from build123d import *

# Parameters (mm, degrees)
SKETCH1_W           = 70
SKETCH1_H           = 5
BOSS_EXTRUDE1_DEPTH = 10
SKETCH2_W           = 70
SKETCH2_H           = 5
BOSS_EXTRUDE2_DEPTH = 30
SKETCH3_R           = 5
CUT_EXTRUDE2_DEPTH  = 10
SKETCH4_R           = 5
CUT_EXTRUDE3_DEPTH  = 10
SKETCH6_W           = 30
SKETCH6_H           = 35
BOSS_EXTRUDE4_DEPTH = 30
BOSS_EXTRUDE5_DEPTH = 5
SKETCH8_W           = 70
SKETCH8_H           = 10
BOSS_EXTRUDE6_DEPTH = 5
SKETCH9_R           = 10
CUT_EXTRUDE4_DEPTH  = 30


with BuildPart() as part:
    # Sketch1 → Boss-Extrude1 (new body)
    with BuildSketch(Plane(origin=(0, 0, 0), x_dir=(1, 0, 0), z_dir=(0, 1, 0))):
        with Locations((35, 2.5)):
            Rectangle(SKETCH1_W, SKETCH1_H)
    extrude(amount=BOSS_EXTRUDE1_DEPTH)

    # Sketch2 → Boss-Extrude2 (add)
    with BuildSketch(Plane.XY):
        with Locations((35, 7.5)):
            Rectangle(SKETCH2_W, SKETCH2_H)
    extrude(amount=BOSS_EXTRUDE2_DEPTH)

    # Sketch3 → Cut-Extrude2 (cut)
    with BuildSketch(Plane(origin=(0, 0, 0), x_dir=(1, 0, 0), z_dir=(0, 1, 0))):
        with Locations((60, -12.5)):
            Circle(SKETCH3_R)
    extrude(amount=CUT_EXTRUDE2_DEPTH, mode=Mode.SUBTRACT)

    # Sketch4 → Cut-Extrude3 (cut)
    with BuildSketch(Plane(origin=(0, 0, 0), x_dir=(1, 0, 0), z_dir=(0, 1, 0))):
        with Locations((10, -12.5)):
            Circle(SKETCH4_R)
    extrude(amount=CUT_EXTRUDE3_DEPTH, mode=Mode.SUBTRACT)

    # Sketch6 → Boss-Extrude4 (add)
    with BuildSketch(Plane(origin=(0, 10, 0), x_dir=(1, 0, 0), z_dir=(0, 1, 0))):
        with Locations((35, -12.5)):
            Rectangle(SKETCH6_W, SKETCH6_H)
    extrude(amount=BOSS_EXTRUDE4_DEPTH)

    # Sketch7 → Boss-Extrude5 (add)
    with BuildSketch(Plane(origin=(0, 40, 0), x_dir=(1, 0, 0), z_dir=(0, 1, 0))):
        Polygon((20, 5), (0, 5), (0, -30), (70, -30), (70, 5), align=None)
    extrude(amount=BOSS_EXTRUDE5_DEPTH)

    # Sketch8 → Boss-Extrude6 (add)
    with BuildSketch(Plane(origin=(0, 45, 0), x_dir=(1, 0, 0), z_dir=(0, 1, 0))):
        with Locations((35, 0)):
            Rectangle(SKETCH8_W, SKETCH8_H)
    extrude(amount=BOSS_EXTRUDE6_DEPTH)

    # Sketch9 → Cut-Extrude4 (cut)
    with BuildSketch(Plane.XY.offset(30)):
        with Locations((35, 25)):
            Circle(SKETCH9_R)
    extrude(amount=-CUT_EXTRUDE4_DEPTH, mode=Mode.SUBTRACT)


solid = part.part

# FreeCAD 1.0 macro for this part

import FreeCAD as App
import Part
import Sketcher

V = App.Vector
Q = App.Units.Quantity


def add_polygon(sketch, points):
    """Adds a closed chain of lines whose ends are joined by coincident constraints."""
    first, n = sketch.GeometryCount, len(points)
    for a, b in zip(points, points[1:] + points[:1]):
        sketch.addGeometry(Part.LineSegment(App.Vector(*a, 0), App.Vector(*b, 0)), False)
    for i in range(n):
        sketch.addConstraint(Sketcher.Constraint("Coincident", first + i, 2, first + (i + 1) % n, 1))

doc = App.newDocument("Part")
body = doc.addObject("PartDesign::Body", "Body")

# Sketch on XZ plane
sketch1 = body.newObject("Sketcher::SketchObject", "Sketch")
sketch1.AttachmentSupport = (doc.getObject("XZ_Plane"), [""])
sketch1.MapMode = "FlatFace"
add_polygon(sketch1, [(0, -5), (0, 0), (70, 0), (70, -5)])  # lines 0-3
sketch1.addConstraint(Sketcher.Constraint("Vertical", 0))
sketch1.addConstraint(Sketcher.Constraint("Horizontal", 1))
sketch1.addConstraint(Sketcher.Constraint("Vertical", 2))
sketch1.addConstraint(Sketcher.Constraint("Horizontal", 3))
sketch1.addConstraint(Sketcher.Constraint("Coincident", 0, 2, -1, 1))
sketch1.addConstraint(Sketcher.Constraint("DistanceX", 1, 1, 1, 2, Q("70 mm")))
sketch1.addConstraint(Sketcher.Constraint("DistanceY", 0, 1, 0, 2, Q("5 mm")))
pad1 = body.newObject("PartDesign::Pad", "Pad")
pad1.Profile = sketch1
pad1.Length = 10
pad1.Reversed = True

# Sketch on XY plane
sketch2 = body.newObject("Sketcher::SketchObject", "Sketch001")
sketch2.AttachmentSupport = (doc.getObject("XY_Plane"), [""])
sketch2.MapMode = "FlatFace"
add_polygon(sketch2, [(0, 10), (0, 5), (70, 5), (70, 10)])  # lines 0-3
sketch2.addConstraint(Sketcher.Constraint("Vertical", 0))
sketch2.addConstraint(Sketcher.Constraint("Horizontal", 1))
sketch2.addConstraint(Sketcher.Constraint("Vertical", 2))
sketch2.addConstraint(Sketcher.Constraint("Horizontal", 3))
sketch2.addConstraint(Sketcher.Constraint("PointOnObject", 0, 2, -2))
sketch2.addConstraint(Sketcher.Constraint("DistanceX", 1, 1, 1, 2, Q("70 mm")))
sketch2.addConstraint(Sketcher.Constraint("DistanceY", 0, 2, 0, 1, Q("5 mm")))
sketch2.addConstraint(Sketcher.Constraint("DistanceY", -1, 1, 0, 2, Q("5 mm")))
pad2 = body.newObject("PartDesign::Pad", "Pad001")
pad2.Profile = sketch2
pad2.Length = 30

# Sketch on XZ plane
sketch3 = body.newObject("Sketcher::SketchObject", "Sketch002")
sketch3.AttachmentSupport = (doc.getObject("XZ_Plane"), [""])
sketch3.MapMode = "FlatFace"
sketch3.addGeometry(Part.Circle(V(60, 12, 0), V(0, 0, 1), 5), False)
sketch3.addConstraint(Sketcher.Constraint("Diameter", 0, Q("10 mm")))
sketch3.addConstraint(Sketcher.Constraint("DistanceX", -1, 1, 0, 3, Q("60 mm")))
sketch3.addConstraint(Sketcher.Constraint("DistanceY", -1, 1, 0, 3, Q("12.5 mm")))
pocket1 = body.newObject("PartDesign::Pocket", "Pocket")
pocket1.Profile = sketch3
pocket1.Length = 10

# Sketch on XZ plane
sketch4 = body.newObject("Sketcher::SketchObject", "Sketch003")
sketch4.AttachmentSupport = (doc.getObject("XZ_Plane"), [""])
sketch4.MapMode = "FlatFace"
sketch4.addGeometry(Part.Circle(V(10, 12, 0), V(0, 0, 1), 5), False)
sketch4.addConstraint(Sketcher.Constraint("Diameter", 0, Q("10 mm")))
sketch4.addConstraint(Sketcher.Constraint("DistanceX", -1, 1, 0, 3, Q("10 mm")))
sketch4.addConstraint(Sketcher.Constraint("DistanceY", -1, 1, 0, 3, Q("12.5 mm")))
pocket2 = body.newObject("PartDesign::Pocket", "Pocket001")
pocket2.Profile = sketch4
pocket2.Length = 10

# Sketch on XZ plane
sketch5 = body.newObject("Sketcher::SketchObject", "Sketch004")
sketch5.AttachmentSupport = (doc.getObject("XZ_Plane"), [""])
sketch5.MapMode = "FlatFace"
sketch5.AttachmentOffset = App.Placement(V(0, 0, -10), App.Rotation())
add_polygon(sketch5, [(20, -5), (20, 30), (50, 30), (50, -5)])  # lines 0-3
sketch5.addConstraint(Sketcher.Constraint("Vertical", 0))
sketch5.addConstraint(Sketcher.Constraint("Horizontal", 1))
sketch5.addConstraint(Sketcher.Constraint("Vertical", 2))
sketch5.addConstraint(Sketcher.Constraint("Horizontal", 3))
sketch5.addConstraint(Sketcher.Constraint("DistanceX", 1, 1, 1, 2, Q("30 mm")))
sketch5.addConstraint(Sketcher.Constraint("DistanceY", 0, 1, 0, 2, Q("35 mm")))
sketch5.addConstraint(Sketcher.Constraint("DistanceX", -1, 1, 0, 2, Q("20 mm")))
sketch5.addConstraint(Sketcher.Constraint("DistanceY", -1, 1, 0, 2, Q("30 mm")))
pad3 = body.newObject("PartDesign::Pad", "Pad002")
pad3.Profile = sketch5
pad3.Length = 30
pad3.Reversed = True

# Sketch on XZ plane
sketch6 = body.newObject("Sketcher::SketchObject", "Sketch005")
sketch6.AttachmentSupport = (doc.getObject("XZ_Plane"), [""])
sketch6.MapMode = "FlatFace"
sketch6.AttachmentOffset = App.Placement(V(0, 0, -40), App.Rotation())
add_polygon(sketch6, [(0, -5), (0, 30), (70, 30), (70, -5)])  # lines 0-3
sketch6.addConstraint(Sketcher.Constraint("Vertical", 0))
sketch6.addConstraint(Sketcher.Constraint("Horizontal", 1))
sketch6.addConstraint(Sketcher.Constraint("Vertical", 2))
sketch6.addConstraint(Sketcher.Constraint("Horizontal", 3))
sketch6.addConstraint(Sketcher.Constraint("PointOnObject", 0, 2, -2))
sketch6.addConstraint(Sketcher.Constraint("DistanceX", 1, 1, 1, 2, Q("70 mm")))
sketch6.addConstraint(Sketcher.Constraint("DistanceY", 0, 1, 0, 2, Q("35 mm")))
sketch6.addConstraint(Sketcher.Constraint("DistanceY", -1, 1, 0, 2, Q("30 mm")))
pad4 = body.newObject("PartDesign::Pad", "Pad003")
pad4.Profile = sketch6
pad4.Length = 5
pad4.Reversed = True

# Sketch on XZ plane
sketch7 = body.newObject("Sketcher::SketchObject", "Sketch006")
sketch7.AttachmentSupport = (doc.getObject("XZ_Plane"), [""])
sketch7.MapMode = "FlatFace"
sketch7.AttachmentOffset = App.Placement(V(0, 0, -45), App.Rotation())
add_polygon(sketch7, [(0, -5), (0, 5), (70, 5), (70, -5)])  # lines 0-3
sketch7.addConstraint(Sketcher.Constraint("Vertical", 0))
sketch7.addConstraint(Sketcher.Constraint("Horizontal", 1))
sketch7.addConstraint(Sketcher.Constraint("Vertical", 2))
sketch7.addConstraint(Sketcher.Constraint("Horizontal", 3))
sketch7.addConstraint(Sketcher.Constraint("Symmetric", 0, 2, 3, 2, -1, 1))
sketch7.addConstraint(Sketcher.Constraint("DistanceX", 1, 1, 1, 2, Q("70 mm")))
sketch7.addConstraint(Sketcher.Constraint("DistanceY", 0, 1, 0, 2, Q("10 mm")))
pad5 = body.newObject("PartDesign::Pad", "Pad004")
pad5.Profile = sketch7
pad5.Length = 5
pad5.Reversed = True

# Sketch on XY plane
sketch8 = body.newObject("Sketcher::SketchObject", "Sketch007")
sketch8.AttachmentSupport = (doc.getObject("XY_Plane"), [""])
sketch8.MapMode = "FlatFace"
sketch8.AttachmentOffset = App.Placement(V(0, 0, 30), App.Rotation())
sketch8.addGeometry(Part.Circle(V(35, 25, 0), V(0, 0, 1), 10), False)
sketch8.addConstraint(Sketcher.Constraint("Diameter", 0, Q("20 mm")))
sketch8.addConstraint(Sketcher.Constraint("DistanceX", -1, 1, 0, 3, Q("35 mm")))
sketch8.addConstraint(Sketcher.Constraint("DistanceY", -1, 1, 0, 3, Q("25 mm")))
pocket3 = body.newObject("PartDesign::Pocket", "Pocket002")
pocket3.Profile = sketch8
pocket3.Length = 30

doc.recompute()
